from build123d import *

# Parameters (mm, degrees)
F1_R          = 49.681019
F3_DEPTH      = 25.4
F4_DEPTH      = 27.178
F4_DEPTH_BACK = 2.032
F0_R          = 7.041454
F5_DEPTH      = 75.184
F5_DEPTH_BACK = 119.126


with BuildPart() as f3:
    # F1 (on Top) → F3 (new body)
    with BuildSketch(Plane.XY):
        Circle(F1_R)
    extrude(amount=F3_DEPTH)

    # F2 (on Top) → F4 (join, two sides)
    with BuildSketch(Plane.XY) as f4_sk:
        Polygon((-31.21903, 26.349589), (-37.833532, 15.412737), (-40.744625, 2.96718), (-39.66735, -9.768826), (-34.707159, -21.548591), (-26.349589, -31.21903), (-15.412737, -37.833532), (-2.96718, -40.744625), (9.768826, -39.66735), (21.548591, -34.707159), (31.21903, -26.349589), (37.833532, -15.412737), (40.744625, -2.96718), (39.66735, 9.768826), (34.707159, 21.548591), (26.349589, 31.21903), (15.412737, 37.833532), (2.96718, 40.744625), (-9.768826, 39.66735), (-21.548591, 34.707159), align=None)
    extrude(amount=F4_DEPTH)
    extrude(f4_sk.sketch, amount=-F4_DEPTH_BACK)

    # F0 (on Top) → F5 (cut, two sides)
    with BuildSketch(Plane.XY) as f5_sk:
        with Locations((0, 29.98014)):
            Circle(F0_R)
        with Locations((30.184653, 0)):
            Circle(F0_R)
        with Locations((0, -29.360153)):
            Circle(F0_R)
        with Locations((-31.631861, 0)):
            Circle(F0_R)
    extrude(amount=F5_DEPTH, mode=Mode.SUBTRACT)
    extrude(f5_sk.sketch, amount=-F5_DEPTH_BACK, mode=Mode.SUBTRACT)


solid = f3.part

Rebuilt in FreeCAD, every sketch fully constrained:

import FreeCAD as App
import Part
import Sketcher

V = App.Vector
Q = App.Units.Quantity


def add_polygon(sketch, points):
    """Adds a closed chain of lines whose ends are joined by coincident constraints."""
    first, n = sketch.GeometryCount, len(points)
    for a, b in zip(points, points[1:] + points[:1]):
        sketch.addGeometry(Part.LineSegment(App.Vector(*a, 0), App.Vector(*b, 0)), False)
    for i in range(n):
        sketch.addConstraint(Sketcher.Constraint("Coincident", first + i, 2, first + (i + 1) % n, 1))

doc = App.newDocument("Part")
body = doc.addObject("PartDesign::Body", "Body")

# Sketch on XY plane
sketch1 = body.newObject("Sketcher::SketchObject", "Sketch")
sketch1.AttachmentSupport = (doc.getObject("XY_Plane"), [""])
sketch1.MapMode = "FlatFace"
sketch1.addGeometry(Part.Circle(V(0, 0, 0), V(0, 0, 1), 49.681019), False)
sketch1.addConstraint([
    Sketcher.Constraint("Coincident", 0, 3, -1, 1),
    Sketcher.Constraint("Diameter", 0, 99.362038),
])
pad1 = body.newObject("PartDesign::Pad", "Pad")
pad1.Profile = sketch1
pad1.Length = Q("1 in")

# Sketch on XY plane
sketch2 = body.newObject("Sketcher::SketchObject", "Sketch001")
sketch2.AttachmentSupport = (doc.getObject("XY_Plane"), [""])
sketch2.MapMode = "FlatFace"
add_polygon(sketch2, [(-31.21903, 26.349589), (-37.833532, 15.412737), (-40.744625, 2.96718), (-39.66735, -9.768826), (-34.707159, -21.548591), (-26.349589, -31.21903), (-15.412737, -37.833532), (-2.96718, -40.744625), (9.768826, -39.66735), (21.548591, -34.707159), (31.21903, -26.349589), (37.833532, -15.412737), (40.744625, -2.96718), (39.66735, 9.768826), (34.707159, 21.548591), (26.349589, 31.21903), (15.412737, 37.833532), (2.96718, 40.744625), (-9.768826, 39.66735), (-21.548591, 34.707159)])  # lines 0-19
sketch2.addConstraint([
    Sketcher.Constraint("Symmetric", 0, 2, 10, 2, -1, 1),
    Sketcher.Constraint("Symmetric", 1, 2, 11, 2, -1, 1),
    Sketcher.Constraint("Symmetric", 2, 2, 12, 2, -1, 1),
    Sketcher.Constraint("Symmetric", 3, 2, 13, 2, -1, 1),
    Sketcher.Constraint("Symmetric", 4, 2, 14, 2, -1, 1),
    Sketcher.Constraint("Symmetric", 5, 2, 15, 2, -1, 1),
    Sketcher.Constraint("Symmetric", 6, 2, 16, 2, -1, 1),
    Sketcher.Constraint("Symmetric", 7, 2, 17, 2, -1, 1),
    Sketcher.Constraint("Symmetric", 8, 2, 18, 2, -1, 1),
    Sketcher.Constraint("Symmetric", 9, 2, 19, 2, -1, 1),
    Sketcher.Constraint("Perpendicular", 0, 5),
    Sketcher.Constraint("Perpendicular", 1, 6),
    Sketcher.Constraint("Perpendicular", 2, 7),
    Sketcher.Constraint("Perpendicular", 3, 8),
    Sketcher.Constraint("Perpendicular", 4, 9),
    Sketcher.Constraint("Equal", 0, 1),
    Sketcher.Constraint("Equal", 1, 2),
    Sketcher.Constraint("Equal", 2, 3),
    Sketcher.Constraint("Equal", 3, 4),
    Sketcher.Constraint("Equal", 4, 5),
    Sketcher.Constraint("Equal", 5, 6),
    Sketcher.Constraint("Equal", 6, 7),
    Sketcher.Constraint("Equal", 7, 8),
    Sketcher.Constraint("Equal", 8, 9),
    Sketcher.Constraint("DistanceY", 2, 2, 0, 2, Q("0.9914001 in")),
    Sketcher.Constraint("DistanceY", 5, 2, 4, 2, 6.614502),
    Sketcher.Constraint("DistanceY", 6, 2, 2, 2, 30.975799),
    Sketcher.Constraint("DistanceX", 0, 2, -1, 1, 37.833532),
    Sketcher.Constraint("DistanceY", -1, 1, 1, 2, 2.96718),
    Sketcher.Constraint("DistanceX", 2, 2, -1, 1, 39.66735),
])
pad2 = body.newObject("PartDesign::Pad", "Pad001")
pad2.Profile = sketch2
pad2.Type = "TwoLengths"
pad2.Length = Q("1.07 in")
pad2.Length2 = Q("0.08 in")

# Sketch on XY plane
sketch3 = body.newObject("Sketcher::SketchObject", "Sketch002")
sketch3.AttachmentSupport = (doc.getObject("XY_Plane"), [""])
sketch3.MapMode = "FlatFace"
sketch3.addGeometry([
    Part.Circle(V(0, 29.98014, 0), V(0, 0, 1), 7.041454),
    Part.Circle(V(30.184653, 0, 0), V(0, 0, 1), 7.041454),
    Part.Circle(V(0, -29.360153, 0), V(0, 0, 1), 7.041454),
    Part.Circle(V(-31.631861, 0, 0), V(0, 0, 1), 7.041454),
], False)
sketch3.addConstraint([
    Sketcher.Constraint("Equal", 0, 1),
    Sketcher.Constraint("Equal", 1, 2),
    Sketcher.Constraint("Equal", 2, 3),
    Sketcher.Constraint("PointOnObject", 0, 3, -2),
    Sketcher.Constraint("PointOnObject", 1, 3, -1),
    Sketcher.Constraint("PointOnObject", 2, 3, -2),
    Sketcher.Constraint("PointOnObject", 3, 3, -1),
    Sketcher.Constraint("Diameter", 0, 14.082908),
    Sketcher.Constraint("DistanceY", -1, 1, 0, 3, 29.98014),
    Sketcher.Constraint("DistanceX", 3, 3, -1, 1, 31.631861),
    Sketcher.Constraint("DistanceX", -1, 1, 1, 3, 30.184653),
    Sketcher.Constraint("DistanceY", 2, 3, -1, 1, 29.360153),
])
pocket1 = body.newObject("PartDesign::Pocket", "Pocket")
pocket1.Profile = sketch3
pocket1.Type = "ThroughAll"
pocket1.Midplane = True

doc.recompute()
